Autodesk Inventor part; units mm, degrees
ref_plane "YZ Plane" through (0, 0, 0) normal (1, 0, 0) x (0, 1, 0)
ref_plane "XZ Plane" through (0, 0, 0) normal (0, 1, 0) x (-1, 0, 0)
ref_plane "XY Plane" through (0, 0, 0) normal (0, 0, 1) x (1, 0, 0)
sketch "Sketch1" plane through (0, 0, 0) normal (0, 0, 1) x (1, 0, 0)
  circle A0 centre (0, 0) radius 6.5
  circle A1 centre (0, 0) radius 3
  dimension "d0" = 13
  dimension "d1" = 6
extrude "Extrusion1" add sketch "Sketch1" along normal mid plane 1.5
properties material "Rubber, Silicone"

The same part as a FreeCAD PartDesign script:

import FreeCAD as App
import Part
import Sketcher
Q = App.Units.Quantity

doc = App.newDocument("Part")
params = doc.addObject("Spreadsheet::Sheet", "Params")
for row, (alias, value) in enumerate([
    ("sketch1_diameter", "13 mm"),
    ("sketch1_diameter2", "6 mm"),
    ("pad1_length", "1.5 mm"),
], start=1):
    params.set(f"A{row}", alias)
    params.set(f"B{row}", "=" + value)
    params.setAlias(f"B{row}", alias)

body = doc.addObject("PartDesign::Body", "Body")

# Sketch on XY plane
sketch1 = doc.addObject("Sketcher::SketchObject", "Sketch")
body.addObject(sketch1)
sketch1.AttachmentSupport = (doc.XY_Plane, [""])
sketch1.MapMode = "FlatFace"
sketch1.addGeometry([
    Part.Circle(App.Vector(0, 0, 0), App.Vector(0, 0, 1), 6.5),
    Part.Circle(App.Vector(0, 0, 0), App.Vector(0, 0, 1), 3),
], False)
sketch1.addConstraint([
    Sketcher.Constraint("Coincident", 0, 3, -1, 1),
    Sketcher.Constraint("Coincident", 1, 3, -1, 1),
    Sketcher.Constraint("Diameter", 0, Q("13 mm")),
    Sketcher.Constraint("Diameter", 1, Q("6 mm")),
])
sketch1.setExpression("Constraints[2]", "Params.sketch1_diameter")
sketch1.setExpression("Constraints[3]", "Params.sketch1_diameter2")
pad1 = doc.addObject("PartDesign::Pad", "Pad")
body.addObject(pad1)
pad1.Profile = sketch1
pad1.setExpression("Length", "Params.pad1_length")
pad1.Midplane = True

doc.recompute()
